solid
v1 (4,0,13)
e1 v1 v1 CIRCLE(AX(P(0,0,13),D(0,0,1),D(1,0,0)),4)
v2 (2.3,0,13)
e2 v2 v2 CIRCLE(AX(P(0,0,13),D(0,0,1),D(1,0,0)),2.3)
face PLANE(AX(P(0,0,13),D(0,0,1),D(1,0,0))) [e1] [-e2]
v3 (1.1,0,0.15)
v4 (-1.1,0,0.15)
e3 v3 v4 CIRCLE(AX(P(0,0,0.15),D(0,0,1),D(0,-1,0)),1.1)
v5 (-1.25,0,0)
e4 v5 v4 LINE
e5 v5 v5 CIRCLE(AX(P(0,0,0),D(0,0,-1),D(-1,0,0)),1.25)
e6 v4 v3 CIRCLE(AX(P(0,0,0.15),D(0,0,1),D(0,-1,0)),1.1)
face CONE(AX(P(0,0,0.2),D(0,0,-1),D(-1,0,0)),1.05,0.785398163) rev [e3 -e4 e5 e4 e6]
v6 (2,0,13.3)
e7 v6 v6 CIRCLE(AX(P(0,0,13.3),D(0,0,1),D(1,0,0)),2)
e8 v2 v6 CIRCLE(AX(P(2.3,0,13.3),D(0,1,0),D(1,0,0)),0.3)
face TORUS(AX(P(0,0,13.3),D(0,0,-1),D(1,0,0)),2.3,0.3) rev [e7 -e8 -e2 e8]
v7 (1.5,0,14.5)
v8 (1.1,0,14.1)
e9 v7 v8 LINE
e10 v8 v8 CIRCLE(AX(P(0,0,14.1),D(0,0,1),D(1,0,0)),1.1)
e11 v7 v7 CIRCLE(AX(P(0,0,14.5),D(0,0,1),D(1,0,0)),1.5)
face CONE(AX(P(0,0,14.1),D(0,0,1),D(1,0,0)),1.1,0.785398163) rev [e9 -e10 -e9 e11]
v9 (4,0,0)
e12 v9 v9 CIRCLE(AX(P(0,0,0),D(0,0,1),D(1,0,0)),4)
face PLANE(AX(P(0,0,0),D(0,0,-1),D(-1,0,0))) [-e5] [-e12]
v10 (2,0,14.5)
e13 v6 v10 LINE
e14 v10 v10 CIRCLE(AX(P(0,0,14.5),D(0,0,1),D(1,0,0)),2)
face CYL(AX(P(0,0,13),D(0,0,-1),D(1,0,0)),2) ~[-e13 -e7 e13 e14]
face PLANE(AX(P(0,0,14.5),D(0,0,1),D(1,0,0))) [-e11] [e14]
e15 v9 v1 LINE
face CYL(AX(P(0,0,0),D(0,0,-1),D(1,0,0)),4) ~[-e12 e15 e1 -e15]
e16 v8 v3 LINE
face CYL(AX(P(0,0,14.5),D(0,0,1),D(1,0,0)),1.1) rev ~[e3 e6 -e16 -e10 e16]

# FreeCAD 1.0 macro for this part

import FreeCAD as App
import Part
import Sketcher
from FreeCAD import Vector


def edges_at(feature, points):
    """Names of the edges that pass closest to the given points."""
    edges = feature.Shape.Edges
    near = lambda p: min(range(len(edges)), key=lambda i: edges[i].distToShape(Part.Vertex(*p))[0])
    return sorted({f"Edge{near(p) + 1}" for p in points})

doc = App.newDocument("Part")
params = doc.addObject("Spreadsheet::Sheet", "Params")
for row, (alias, value) in enumerate([
    ("sketch1_diameter", "8 mm"),
    ("sketch1_diameter2", "2 mm"),
    ("pad1_length", "13 mm"),
    ("sketch2_diameter", "4 mm"),
    ("sketch2_diameter2", "2 mm"),
    ("pad2_length", "1.5 mm"),
    ("sketch3_diameter", "2.1 mm"),
    ("sketch3_diameter2", "2 mm"),
    ("pocket1_length", "20 mm"),
    ("sketch4_diameter", "8 mm"),
    ("sketch4_diameter2", "2.1 mm"),
    ("pad3_length", "0.5 mm"),
    ("sketch5_diameter", "8 mm"),
    ("sketch5_diameter2", "2.1 mm"),
    ("pad4_length", "0.5 mm"),
    ("sketch6_diameter", "8 mm"),
    ("sketch6_diameter2", "2.1 mm"),
    ("pocket2_length", "1 mm"),
    ("chamfer_size", "0.2 mm"),
    ("sketch7_diameter", "2.2 mm"),
    ("pocket3_length", "30 mm"),
    ("fillet_radius", "0.3 mm"),
    ("chamfer2_size", "0.4 mm"),
], start=1):
    params.set(f"A{row}", alias)
    params.set(f"B{row}", "=" + value)
    params.setAlias(f"B{row}", alias)

body = doc.addObject("PartDesign::Body", "Body")

# Sketch on XY plane
sketch1 = body.newObject("Sketcher::SketchObject", "Sketch")
sketch1.AttachmentSupport = (doc.getObject("XY_Plane"), [""])
sketch1.MapMode = "FlatFace"
sketch1.addGeometry([
    Part.Circle(Vector(0, 0, 0), Vector(0, 0, 1), 4),
    Part.Circle(Vector(0, 0, 0), Vector(0, 0, 1), 1),
], False)
sketch1.addConstraint([
    Sketcher.Constraint("Coincident", 0, 3, -1, 1),
    Sketcher.Constraint("Coincident", 1, 3, -1, 1),
    Sketcher.Constraint("Diameter", 0, 8.0),
    Sketcher.Constraint("Diameter", 1, 2.0),
])
sketch1.setExpression("Constraints[2]", "Params.sketch1_diameter")
sketch1.setExpression("Constraints[3]", "Params.sketch1_diameter2")
pad1 = body.newObject("PartDesign::Pad", "Pad")
pad1.Profile = sketch1
pad1.setExpression("Length", "Params.pad1_length")

# Sketch on XY plane
sketch2 = body.newObject("Sketcher::SketchObject", "Sketch001")
sketch2.AttachmentSupport = (doc.getObject("XY_Plane"), [""])
sketch2.MapMode = "FlatFace"
sketch2.AttachmentOffset = App.Placement(Vector(0, 0, 13), App.Rotation())
sketch2.addGeometry([
    Part.Circle(Vector(0, 0, 0), Vector(0, 0, 1), 2),
    Part.Circle(Vector(0, 0, 0), Vector(0, 0, 1), 1),
], False)
sketch2.addConstraint([
    Sketcher.Constraint("Coincident", 0, 3, -1, 1),
    Sketcher.Constraint("Coincident", 1, 3, -1, 1),
    Sketcher.Constraint("Diameter", 0, 4.0),
    Sketcher.Constraint("Diameter", 1, 2.0),
])
sketch2.setExpression("Constraints[2]", "Params.sketch2_diameter")
sketch2.setExpression("Constraints[3]", "Params.sketch2_diameter2")
pad2 = body.newObject("PartDesign::Pad", "Pad001")
pad2.Profile = sketch2
pad2.setExpression("Length", "Params.pad2_length")

# Sketch on XY plane
sketch3 = body.newObject("Sketcher::SketchObject", "Sketch002")
sketch3.AttachmentSupport = (doc.getObject("XY_Plane"), [""])
sketch3.MapMode = "FlatFace"
sketch3.addGeometry([
    Part.Circle(Vector(0, 0, 0), Vector(0, 0, 1), 1.05),
    Part.Circle(Vector(0, 0, 0), Vector(0, 0, 1), 1),
], False)
sketch3.addConstraint([
    Sketcher.Constraint("Coincident", 0, 3, -1, 1),
    Sketcher.Constraint("Coincident", 1, 3, -1, 1),
    Sketcher.Constraint("Diameter", 0, 2.1),
    Sketcher.Constraint("Diameter", 1, 2.0),
])
sketch3.setExpression("Constraints[2]", "Params.sketch3_diameter")
sketch3.setExpression("Constraints[3]", "Params.sketch3_diameter2")
pocket1 = body.newObject("PartDesign::Pocket", "Pocket")
pocket1.Profile = sketch3
pocket1.setExpression("Length", "Params.pocket1_length")
pocket1.Reversed = True

# Sketch on XY plane
sketch4 = body.newObject("Sketcher::SketchObject", "Sketch003")
sketch4.AttachmentSupport = (doc.getObject("XY_Plane"), [""])
sketch4.MapMode = "FlatFace"
sketch4.addGeometry([
    Part.Circle(Vector(0, 0, 0), Vector(0, 0, 1), 4),
    Part.Circle(Vector(0, 0, 0), Vector(0, 0, 1), 1.05),
], False)
sketch4.addConstraint([
    Sketcher.Constraint("Coincident", 0, 3, -1, 1),
    Sketcher.Constraint("Coincident", 1, 3, -1, 1),
    Sketcher.Constraint("Diameter", 0, 8.0),
    Sketcher.Constraint("Diameter", 1, 2.1),
])
sketch4.setExpression("Constraints[2]", "Params.sketch4_diameter")
sketch4.setExpression("Constraints[3]", "Params.sketch4_diameter2")
pad3 = body.newObject("PartDesign::Pad", "Pad002")
pad3.Profile = sketch4
pad3.setExpression("Length", "Params.pad3_length")
pad3.Reversed = True

# Sketch on XY plane
sketch5 = body.newObject("Sketcher::SketchObject", "Sketch004")
sketch5.AttachmentSupport = (doc.getObject("XY_Plane"), [""])
sketch5.MapMode = "FlatFace"
sketch5.AttachmentOffset = App.Placement(Vector(0, 0, -0.5), App.Rotation())
sketch5.addGeometry([
    Part.Circle(Vector(0, 0, 0), Vector(0, 0, 1), 4),
    Part.Circle(Vector(0, 0, 0), Vector(0, 0, 1), 1.05),
], False)
sketch5.addConstraint([
    Sketcher.Constraint("Coincident", 0, 3, -1, 1),
    Sketcher.Constraint("Coincident", 1, 3, -1, 1),
    Sketcher.Constraint("Diameter", 0, 8.0),
    Sketcher.Constraint("Diameter", 1, 2.1),
])
sketch5.setExpression("Constraints[2]", "Params.sketch5_diameter")
sketch5.setExpression("Constraints[3]", "Params.sketch5_diameter2")
pad4 = body.newObject("PartDesign::Pad", "Pad003")
pad4.Profile = sketch5
pad4.setExpression("Length", "Params.pad4_length")
pad4.Reversed = True

# Sketch on XY plane
sketch6 = body.newObject("Sketcher::SketchObject", "Sketch005")
sketch6.AttachmentSupport = (doc.getObject("XY_Plane"), [""])
sketch6.MapMode = "FlatFace"
sketch6.AttachmentOffset = App.Placement(Vector(0, 0, -1), App.Rotation())
sketch6.addGeometry([
    Part.Circle(Vector(0, 0, 0), Vector(0, 0, 1), 4),
    Part.Circle(Vector(0, 0, 0), Vector(0, 0, 1), 1.05),
], False)
sketch6.addConstraint([
    Sketcher.Constraint("Coincident", 0, 3, -1, 1),
    Sketcher.Constraint("Coincident", 1, 3, -1, 1),
    Sketcher.Constraint("Diameter", 0, 8.0),
    Sketcher.Constraint("Diameter", 1, 2.1),
])
sketch6.setExpression("Constraints[2]", "Params.sketch6_diameter")
sketch6.setExpression("Constraints[3]", "Params.sketch6_diameter2")
pocket2 = body.newObject("PartDesign::Pocket", "Pocket001")
pocket2.Profile = sketch6
pocket2.setExpression("Length", "Params.pocket2_length")
pocket2.Reversed = True
doc.recompute()

chamfer = body.newObject("PartDesign::Chamfer", "Chamfer")
chamfer.Base = (pocket2, edges_at(pocket2, [(1.05, 0, 0)]))
chamfer.setExpression("Size", "Params.chamfer_size")

# Sketch on XY plane
sketch7 = body.newObject("Sketcher::SketchObject", "Sketch006")
sketch7.AttachmentSupport = (doc.getObject("XY_Plane"), [""])
sketch7.MapMode = "FlatFace"
sketch7.AttachmentOffset = App.Placement(Vector(0, 0, 14.5), App.Rotation())
sketch7.addGeometry(Part.Circle(Vector(0, 0, 0), Vector(0, 0, 1), 1.1), False)
sketch7.addConstraint([
    Sketcher.Constraint("Coincident", 0, 3, -1, 1),
    Sketcher.Constraint("Diameter", 0, 2.2),
])
sketch7.setExpression("Constraints[1]", "Params.sketch7_diameter")
pocket3 = body.newObject("PartDesign::Pocket", "Pocket002")
pocket3.Profile = sketch7
pocket3.setExpression("Length", "Params.pocket3_length")
doc.recompute()

fillet = body.newObject("PartDesign::Fillet", "Fillet")
fillet.Base = (pocket3, edges_at(pocket3, [(-2, 0, 13)]))
fillet.setExpression("Radius", "Params.fillet_radius")
doc.recompute()

chamfer2 = body.newObject("PartDesign::Chamfer", "Chamfer001")
chamfer2.Base = (fillet, edges_at(fillet, [(-1.1, 0, 14.5)]))
chamfer2.setExpression("Size", "Params.chamfer2_size")

doc.recompute()
